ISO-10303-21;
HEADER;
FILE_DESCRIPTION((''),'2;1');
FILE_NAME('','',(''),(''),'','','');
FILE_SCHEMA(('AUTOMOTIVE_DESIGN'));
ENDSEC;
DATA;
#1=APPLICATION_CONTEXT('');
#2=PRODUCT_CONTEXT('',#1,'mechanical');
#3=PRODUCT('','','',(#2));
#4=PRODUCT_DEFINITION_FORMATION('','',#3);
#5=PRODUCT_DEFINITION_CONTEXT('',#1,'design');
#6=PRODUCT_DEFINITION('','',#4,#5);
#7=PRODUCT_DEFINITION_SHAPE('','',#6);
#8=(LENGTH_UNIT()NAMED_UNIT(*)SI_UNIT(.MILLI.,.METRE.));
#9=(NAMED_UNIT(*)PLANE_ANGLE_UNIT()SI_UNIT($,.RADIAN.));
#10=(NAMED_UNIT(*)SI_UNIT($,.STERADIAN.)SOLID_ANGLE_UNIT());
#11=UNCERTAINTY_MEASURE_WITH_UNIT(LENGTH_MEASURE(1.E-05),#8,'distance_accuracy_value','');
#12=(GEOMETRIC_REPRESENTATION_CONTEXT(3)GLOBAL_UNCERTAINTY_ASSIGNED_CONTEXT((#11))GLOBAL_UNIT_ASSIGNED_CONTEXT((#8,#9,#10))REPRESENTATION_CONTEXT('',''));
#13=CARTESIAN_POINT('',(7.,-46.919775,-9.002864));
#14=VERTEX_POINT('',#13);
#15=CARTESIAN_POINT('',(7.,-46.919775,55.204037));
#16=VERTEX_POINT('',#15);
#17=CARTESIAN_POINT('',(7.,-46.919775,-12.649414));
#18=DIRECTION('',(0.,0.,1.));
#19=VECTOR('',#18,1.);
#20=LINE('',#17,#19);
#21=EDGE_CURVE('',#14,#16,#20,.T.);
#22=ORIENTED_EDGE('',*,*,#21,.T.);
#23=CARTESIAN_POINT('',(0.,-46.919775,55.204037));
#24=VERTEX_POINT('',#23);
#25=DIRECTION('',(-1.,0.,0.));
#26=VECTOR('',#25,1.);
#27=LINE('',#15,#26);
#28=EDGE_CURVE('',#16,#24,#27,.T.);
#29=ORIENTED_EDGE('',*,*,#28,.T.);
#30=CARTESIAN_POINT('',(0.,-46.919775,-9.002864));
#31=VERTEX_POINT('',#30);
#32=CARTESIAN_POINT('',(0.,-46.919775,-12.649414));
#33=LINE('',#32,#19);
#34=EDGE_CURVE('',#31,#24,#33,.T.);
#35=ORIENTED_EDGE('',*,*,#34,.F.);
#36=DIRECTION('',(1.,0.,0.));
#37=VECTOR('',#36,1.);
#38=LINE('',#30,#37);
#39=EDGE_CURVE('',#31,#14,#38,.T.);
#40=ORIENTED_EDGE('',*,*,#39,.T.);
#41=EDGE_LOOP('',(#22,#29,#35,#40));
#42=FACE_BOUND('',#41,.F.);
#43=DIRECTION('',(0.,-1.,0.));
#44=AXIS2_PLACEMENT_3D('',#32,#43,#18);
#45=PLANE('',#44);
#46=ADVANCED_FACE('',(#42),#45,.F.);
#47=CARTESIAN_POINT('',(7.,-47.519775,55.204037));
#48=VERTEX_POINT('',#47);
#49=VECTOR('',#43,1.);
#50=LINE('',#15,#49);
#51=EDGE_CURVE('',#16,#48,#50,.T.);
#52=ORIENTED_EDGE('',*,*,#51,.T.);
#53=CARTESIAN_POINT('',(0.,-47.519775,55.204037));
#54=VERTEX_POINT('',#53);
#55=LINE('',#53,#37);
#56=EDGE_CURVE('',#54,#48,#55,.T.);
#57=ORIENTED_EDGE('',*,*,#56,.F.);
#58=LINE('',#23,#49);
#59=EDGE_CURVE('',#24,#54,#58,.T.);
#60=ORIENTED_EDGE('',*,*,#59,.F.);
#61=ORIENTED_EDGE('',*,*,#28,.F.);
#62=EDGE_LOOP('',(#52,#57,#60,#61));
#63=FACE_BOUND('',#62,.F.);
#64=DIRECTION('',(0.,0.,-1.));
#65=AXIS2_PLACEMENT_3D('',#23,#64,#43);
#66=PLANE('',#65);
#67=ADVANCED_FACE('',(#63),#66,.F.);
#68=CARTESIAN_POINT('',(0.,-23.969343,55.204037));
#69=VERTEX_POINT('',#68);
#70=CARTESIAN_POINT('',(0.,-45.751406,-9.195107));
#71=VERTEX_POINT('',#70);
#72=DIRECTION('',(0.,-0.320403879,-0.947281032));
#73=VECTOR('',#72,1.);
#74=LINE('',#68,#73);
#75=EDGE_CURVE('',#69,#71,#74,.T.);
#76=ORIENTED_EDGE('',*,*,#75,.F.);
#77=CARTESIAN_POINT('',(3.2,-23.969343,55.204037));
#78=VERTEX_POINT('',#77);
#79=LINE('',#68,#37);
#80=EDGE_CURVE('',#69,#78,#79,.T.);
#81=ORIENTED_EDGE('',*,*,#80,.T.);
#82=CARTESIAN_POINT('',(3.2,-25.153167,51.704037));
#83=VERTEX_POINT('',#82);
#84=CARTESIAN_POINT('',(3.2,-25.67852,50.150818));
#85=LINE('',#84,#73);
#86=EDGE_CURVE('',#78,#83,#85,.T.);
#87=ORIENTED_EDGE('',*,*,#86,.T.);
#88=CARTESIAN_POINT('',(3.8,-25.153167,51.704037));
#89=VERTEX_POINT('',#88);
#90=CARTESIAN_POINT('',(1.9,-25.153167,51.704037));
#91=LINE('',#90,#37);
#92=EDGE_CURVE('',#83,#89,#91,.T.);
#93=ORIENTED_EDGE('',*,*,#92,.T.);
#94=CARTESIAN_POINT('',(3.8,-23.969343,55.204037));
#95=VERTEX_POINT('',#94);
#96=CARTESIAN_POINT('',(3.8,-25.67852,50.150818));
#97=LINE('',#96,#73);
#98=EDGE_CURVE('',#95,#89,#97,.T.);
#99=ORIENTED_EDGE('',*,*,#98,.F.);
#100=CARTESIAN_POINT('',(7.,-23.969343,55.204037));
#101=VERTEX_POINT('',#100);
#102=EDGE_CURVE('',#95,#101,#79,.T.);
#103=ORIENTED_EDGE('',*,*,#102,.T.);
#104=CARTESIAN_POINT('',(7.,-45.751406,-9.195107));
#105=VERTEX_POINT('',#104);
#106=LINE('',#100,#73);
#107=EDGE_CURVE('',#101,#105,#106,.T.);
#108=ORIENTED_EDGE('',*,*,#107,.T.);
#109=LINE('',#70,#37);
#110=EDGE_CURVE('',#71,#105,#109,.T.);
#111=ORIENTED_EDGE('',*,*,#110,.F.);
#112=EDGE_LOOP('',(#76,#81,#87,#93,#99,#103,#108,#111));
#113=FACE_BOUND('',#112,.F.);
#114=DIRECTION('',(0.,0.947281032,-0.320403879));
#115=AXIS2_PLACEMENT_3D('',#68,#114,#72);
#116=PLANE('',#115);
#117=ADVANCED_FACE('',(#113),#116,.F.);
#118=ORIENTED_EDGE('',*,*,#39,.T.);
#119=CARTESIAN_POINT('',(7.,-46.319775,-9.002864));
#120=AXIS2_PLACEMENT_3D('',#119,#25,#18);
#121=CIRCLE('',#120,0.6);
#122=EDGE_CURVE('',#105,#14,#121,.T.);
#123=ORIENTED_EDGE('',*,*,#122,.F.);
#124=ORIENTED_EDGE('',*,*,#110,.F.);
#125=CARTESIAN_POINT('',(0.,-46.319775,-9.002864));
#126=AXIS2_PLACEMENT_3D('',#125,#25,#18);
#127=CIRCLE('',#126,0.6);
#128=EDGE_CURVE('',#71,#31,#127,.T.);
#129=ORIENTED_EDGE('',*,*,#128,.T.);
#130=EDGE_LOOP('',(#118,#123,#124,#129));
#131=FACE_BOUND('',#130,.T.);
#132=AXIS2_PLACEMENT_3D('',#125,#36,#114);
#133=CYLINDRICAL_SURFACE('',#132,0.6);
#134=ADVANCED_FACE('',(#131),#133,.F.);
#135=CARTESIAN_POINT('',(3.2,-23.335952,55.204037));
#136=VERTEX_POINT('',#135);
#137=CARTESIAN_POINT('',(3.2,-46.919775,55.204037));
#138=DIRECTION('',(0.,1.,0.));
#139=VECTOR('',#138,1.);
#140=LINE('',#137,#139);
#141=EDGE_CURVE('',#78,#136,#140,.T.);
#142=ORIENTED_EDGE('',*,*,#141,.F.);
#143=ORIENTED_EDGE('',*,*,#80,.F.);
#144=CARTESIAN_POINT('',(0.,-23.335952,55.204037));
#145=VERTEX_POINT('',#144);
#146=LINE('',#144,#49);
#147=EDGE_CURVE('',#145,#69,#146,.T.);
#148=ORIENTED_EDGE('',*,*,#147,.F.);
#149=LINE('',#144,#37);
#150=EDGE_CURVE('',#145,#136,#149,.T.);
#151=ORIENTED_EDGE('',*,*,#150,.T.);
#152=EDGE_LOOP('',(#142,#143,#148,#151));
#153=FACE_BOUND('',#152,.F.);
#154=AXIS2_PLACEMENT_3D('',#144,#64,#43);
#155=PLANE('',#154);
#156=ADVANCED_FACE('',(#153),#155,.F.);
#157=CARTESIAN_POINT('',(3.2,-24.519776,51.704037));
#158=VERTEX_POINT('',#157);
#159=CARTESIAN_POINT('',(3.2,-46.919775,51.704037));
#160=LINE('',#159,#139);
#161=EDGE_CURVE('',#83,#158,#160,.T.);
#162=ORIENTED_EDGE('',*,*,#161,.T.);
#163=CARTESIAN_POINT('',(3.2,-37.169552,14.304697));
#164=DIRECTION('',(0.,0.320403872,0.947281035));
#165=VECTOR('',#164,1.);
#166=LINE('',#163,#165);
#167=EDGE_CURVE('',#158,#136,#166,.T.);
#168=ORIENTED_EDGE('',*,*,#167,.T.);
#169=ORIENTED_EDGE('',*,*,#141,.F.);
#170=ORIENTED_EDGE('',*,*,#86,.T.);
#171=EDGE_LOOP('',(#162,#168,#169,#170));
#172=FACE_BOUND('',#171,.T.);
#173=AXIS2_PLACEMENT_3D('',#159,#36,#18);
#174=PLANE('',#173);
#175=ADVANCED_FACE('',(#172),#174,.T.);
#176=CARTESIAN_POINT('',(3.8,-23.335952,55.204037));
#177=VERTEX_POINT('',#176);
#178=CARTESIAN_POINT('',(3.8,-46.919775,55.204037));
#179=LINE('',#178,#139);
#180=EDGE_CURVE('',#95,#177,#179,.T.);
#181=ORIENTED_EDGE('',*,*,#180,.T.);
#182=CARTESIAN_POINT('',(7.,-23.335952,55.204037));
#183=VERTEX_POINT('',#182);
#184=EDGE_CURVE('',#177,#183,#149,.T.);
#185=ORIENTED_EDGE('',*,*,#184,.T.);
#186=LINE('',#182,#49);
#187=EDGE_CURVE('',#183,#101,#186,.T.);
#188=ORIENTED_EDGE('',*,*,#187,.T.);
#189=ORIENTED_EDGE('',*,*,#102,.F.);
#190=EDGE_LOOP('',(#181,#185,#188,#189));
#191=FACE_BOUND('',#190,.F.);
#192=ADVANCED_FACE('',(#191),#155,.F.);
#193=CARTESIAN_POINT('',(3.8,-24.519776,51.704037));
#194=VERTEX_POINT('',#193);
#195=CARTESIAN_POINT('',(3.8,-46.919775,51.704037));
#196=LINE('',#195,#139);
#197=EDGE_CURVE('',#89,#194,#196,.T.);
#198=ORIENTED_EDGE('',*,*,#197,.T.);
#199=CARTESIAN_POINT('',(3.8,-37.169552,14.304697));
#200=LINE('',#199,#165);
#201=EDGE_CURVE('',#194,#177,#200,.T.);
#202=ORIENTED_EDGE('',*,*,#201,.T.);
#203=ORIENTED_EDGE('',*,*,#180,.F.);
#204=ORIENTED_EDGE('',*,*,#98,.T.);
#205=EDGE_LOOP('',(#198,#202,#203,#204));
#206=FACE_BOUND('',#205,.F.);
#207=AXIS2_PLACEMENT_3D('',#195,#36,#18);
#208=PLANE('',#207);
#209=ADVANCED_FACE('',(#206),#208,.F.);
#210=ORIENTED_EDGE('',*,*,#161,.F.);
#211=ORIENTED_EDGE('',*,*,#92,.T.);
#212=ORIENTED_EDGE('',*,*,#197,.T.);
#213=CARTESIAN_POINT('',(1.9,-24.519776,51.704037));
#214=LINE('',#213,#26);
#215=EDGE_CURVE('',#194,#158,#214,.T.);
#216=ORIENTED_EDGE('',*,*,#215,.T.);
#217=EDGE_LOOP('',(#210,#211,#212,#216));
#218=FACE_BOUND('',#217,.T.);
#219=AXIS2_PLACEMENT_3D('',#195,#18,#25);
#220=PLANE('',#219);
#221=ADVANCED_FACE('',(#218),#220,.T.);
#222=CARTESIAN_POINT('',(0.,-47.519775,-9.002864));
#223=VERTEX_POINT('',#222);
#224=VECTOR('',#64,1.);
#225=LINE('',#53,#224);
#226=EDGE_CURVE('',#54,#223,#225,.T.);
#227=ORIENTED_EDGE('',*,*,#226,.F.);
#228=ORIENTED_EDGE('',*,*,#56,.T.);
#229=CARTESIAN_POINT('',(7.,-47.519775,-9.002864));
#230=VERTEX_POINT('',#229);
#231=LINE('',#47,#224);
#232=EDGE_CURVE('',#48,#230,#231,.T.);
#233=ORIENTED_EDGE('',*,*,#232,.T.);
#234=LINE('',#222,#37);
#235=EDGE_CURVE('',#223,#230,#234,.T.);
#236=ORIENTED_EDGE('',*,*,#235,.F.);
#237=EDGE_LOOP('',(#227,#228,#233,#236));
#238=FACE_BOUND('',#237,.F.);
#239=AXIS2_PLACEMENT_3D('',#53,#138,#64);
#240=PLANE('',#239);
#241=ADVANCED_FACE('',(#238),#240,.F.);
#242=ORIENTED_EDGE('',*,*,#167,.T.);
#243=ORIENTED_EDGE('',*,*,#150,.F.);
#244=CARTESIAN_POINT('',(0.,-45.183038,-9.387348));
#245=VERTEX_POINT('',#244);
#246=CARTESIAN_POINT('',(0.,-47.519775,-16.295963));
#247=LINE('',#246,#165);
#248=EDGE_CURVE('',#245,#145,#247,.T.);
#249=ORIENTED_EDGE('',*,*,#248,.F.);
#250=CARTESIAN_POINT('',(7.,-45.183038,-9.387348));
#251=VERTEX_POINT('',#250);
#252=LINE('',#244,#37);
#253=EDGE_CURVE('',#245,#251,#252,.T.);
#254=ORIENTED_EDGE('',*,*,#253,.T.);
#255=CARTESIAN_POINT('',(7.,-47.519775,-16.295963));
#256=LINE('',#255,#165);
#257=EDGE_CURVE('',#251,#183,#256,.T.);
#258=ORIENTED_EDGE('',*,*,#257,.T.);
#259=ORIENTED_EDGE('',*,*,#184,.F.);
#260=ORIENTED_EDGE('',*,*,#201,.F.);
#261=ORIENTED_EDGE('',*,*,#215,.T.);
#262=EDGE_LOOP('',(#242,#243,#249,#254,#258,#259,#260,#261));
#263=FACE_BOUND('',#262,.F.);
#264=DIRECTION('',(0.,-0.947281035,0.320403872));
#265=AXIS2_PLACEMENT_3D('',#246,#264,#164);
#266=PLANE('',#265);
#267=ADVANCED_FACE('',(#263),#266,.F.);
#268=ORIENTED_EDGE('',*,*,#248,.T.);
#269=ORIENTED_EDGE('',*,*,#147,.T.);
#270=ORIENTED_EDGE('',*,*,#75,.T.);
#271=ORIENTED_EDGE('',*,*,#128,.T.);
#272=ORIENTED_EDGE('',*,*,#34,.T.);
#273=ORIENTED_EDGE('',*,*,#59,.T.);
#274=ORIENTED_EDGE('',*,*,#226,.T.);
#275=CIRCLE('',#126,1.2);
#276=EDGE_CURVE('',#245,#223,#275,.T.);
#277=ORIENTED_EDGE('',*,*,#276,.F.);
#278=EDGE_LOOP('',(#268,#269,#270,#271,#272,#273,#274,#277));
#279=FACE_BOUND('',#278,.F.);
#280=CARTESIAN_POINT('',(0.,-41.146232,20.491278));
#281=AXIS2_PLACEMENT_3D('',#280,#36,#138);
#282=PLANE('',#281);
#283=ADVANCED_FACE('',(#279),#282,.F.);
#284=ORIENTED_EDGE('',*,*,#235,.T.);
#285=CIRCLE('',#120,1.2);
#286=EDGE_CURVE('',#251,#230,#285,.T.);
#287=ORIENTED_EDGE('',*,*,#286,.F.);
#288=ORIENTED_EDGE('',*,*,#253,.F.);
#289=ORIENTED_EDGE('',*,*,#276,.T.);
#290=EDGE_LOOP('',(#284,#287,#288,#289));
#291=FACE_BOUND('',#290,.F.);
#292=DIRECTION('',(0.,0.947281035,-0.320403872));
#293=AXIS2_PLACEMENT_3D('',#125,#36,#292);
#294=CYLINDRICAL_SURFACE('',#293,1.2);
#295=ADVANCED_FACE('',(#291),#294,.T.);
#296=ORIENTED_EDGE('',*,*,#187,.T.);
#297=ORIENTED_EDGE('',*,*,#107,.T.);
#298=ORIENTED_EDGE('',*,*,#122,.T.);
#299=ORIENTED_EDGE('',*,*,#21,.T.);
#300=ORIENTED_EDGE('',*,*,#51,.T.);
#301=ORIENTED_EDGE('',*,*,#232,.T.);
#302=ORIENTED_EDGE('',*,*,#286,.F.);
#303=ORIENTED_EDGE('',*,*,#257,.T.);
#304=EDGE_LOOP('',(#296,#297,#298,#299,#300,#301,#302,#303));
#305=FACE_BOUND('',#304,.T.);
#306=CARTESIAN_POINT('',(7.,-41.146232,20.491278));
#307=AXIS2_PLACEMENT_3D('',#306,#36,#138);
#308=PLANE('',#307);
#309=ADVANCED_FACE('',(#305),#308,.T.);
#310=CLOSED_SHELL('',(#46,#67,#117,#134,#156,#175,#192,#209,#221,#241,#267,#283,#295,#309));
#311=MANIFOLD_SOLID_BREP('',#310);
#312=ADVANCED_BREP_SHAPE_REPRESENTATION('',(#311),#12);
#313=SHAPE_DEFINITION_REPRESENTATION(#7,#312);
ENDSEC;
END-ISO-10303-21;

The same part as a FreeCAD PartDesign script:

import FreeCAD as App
import Part
import Sketcher

V = App.Vector


def edges_at(feature, points):
    """Names of the edges that pass closest to the given points."""
    edges = feature.Shape.Edges
    near = lambda p: min(range(len(edges)), key=lambda i: edges[i].distToShape(Part.Vertex(*p))[0])
    return sorted({f"Edge{near(p) + 1}" for p in points})


def add_polygon(sketch, points):
    """Adds a closed chain of lines whose ends are joined by coincident constraints."""
    first, n = sketch.GeometryCount, len(points)
    for a, b in zip(points, points[1:] + points[:1]):
        sketch.addGeometry(Part.LineSegment(App.Vector(*a, 0), App.Vector(*b, 0)), False)
    for i in range(n):
        sketch.addConstraint(Sketcher.Constraint("Coincident", first + i, 2, first + (i + 1) % n, 1))

doc = App.newDocument("Part")
body = doc.addObject("PartDesign::Body", "Body")

sketch1 = body.newObject("Sketcher::SketchObject", "Sketch")
sketch1.AttachmentSupport = (doc.getObject("YZ_Plane"), [""])
sketch1.MapMode = "FlatFace"
add_polygon(sketch1, [(-46.9, 55.2), (-47.5, 55.2), (-47.5, -16.3), (-23.3, 55.2), (-24, 55.2), (-46.9, -12.6)])
sketch1.addConstraint([
    Sketcher.Constraint("Horizontal", 0),
    Sketcher.Constraint("Vertical", 1),
    Sketcher.Constraint("Horizontal", 3),
    Sketcher.Constraint("Vertical", 5),
    Sketcher.Constraint("Parallel", 2, 4),
    Sketcher.Constraint("Horizontal", 0, 2, 2, 2),
    Sketcher.Constraint("DistanceX", 0, 2, 0, 1, 0.6),
    Sketcher.Constraint("DistanceY", 1, 2, 1, 1, 71.5),
    Sketcher.Constraint("DistanceX", 3, 2, 3, 1, 0.633391),
    Sketcher.Constraint("DistanceY", 5, 1, 5, 2, 67.853451),
    Sketcher.Constraint("DistanceX", 2, 2, -1, 1, 23.335952),
    Sketcher.Constraint("DistanceY", -1, 1, 0, 2, 55.204037),
])
pad1 = body.newObject("PartDesign::Pad", "Pad")
pad1.Profile = sketch1
pad1.Length = 7

sketch2 = body.newObject("Sketcher::SketchObject", "Sketch001")
sketch2.AttachmentSupport = (doc.getObject("XZ_Plane"), [""])
sketch2.MapMode = "FlatFace"
sketch2.AttachmentOffset = App.Placement(V(0, 0, 46.919775), App.Rotation())
add_polygon(sketch2, [(3.8, 55.2), (3.8, 51.7), (3.2, 51.7), (3.2, 55.2)])
sketch2.addConstraint([
    Sketcher.Constraint("Vertical", 0),
    Sketcher.Constraint("Horizontal", 1),
    Sketcher.Constraint("Vertical", 2),
    Sketcher.Constraint("Horizontal", 3),
    Sketcher.Constraint("DistanceX", 1, 2, 1, 1, 0.6),
    Sketcher.Constraint("DistanceY", 0, 2, 0, 1, 3.5),
    Sketcher.Constraint("DistanceX", -1, 1, 0, 2, 3.8),
    Sketcher.Constraint("DistanceY", -1, 1, 0, 2, 51.704037),
])
pocket1 = body.newObject("PartDesign::Pocket", "Pocket")
pocket1.Profile = sketch2
pocket1.Length = 32.5
doc.recompute()

fillet = body.newObject("PartDesign::Fillet", "Fillet")
fillet.Base = (pocket1, edges_at(pocket1, [(3.5, -46.92, -12.649)]))
fillet.Radius = 0.6
doc.recompute()

fillet2 = body.newObject("PartDesign::Fillet", "Fillet001")
fillet2.Base = (fillet, edges_at(fillet, [(3.5, -47.52, -16.296)]))
fillet2.Radius = 1.2

doc.recompute()
